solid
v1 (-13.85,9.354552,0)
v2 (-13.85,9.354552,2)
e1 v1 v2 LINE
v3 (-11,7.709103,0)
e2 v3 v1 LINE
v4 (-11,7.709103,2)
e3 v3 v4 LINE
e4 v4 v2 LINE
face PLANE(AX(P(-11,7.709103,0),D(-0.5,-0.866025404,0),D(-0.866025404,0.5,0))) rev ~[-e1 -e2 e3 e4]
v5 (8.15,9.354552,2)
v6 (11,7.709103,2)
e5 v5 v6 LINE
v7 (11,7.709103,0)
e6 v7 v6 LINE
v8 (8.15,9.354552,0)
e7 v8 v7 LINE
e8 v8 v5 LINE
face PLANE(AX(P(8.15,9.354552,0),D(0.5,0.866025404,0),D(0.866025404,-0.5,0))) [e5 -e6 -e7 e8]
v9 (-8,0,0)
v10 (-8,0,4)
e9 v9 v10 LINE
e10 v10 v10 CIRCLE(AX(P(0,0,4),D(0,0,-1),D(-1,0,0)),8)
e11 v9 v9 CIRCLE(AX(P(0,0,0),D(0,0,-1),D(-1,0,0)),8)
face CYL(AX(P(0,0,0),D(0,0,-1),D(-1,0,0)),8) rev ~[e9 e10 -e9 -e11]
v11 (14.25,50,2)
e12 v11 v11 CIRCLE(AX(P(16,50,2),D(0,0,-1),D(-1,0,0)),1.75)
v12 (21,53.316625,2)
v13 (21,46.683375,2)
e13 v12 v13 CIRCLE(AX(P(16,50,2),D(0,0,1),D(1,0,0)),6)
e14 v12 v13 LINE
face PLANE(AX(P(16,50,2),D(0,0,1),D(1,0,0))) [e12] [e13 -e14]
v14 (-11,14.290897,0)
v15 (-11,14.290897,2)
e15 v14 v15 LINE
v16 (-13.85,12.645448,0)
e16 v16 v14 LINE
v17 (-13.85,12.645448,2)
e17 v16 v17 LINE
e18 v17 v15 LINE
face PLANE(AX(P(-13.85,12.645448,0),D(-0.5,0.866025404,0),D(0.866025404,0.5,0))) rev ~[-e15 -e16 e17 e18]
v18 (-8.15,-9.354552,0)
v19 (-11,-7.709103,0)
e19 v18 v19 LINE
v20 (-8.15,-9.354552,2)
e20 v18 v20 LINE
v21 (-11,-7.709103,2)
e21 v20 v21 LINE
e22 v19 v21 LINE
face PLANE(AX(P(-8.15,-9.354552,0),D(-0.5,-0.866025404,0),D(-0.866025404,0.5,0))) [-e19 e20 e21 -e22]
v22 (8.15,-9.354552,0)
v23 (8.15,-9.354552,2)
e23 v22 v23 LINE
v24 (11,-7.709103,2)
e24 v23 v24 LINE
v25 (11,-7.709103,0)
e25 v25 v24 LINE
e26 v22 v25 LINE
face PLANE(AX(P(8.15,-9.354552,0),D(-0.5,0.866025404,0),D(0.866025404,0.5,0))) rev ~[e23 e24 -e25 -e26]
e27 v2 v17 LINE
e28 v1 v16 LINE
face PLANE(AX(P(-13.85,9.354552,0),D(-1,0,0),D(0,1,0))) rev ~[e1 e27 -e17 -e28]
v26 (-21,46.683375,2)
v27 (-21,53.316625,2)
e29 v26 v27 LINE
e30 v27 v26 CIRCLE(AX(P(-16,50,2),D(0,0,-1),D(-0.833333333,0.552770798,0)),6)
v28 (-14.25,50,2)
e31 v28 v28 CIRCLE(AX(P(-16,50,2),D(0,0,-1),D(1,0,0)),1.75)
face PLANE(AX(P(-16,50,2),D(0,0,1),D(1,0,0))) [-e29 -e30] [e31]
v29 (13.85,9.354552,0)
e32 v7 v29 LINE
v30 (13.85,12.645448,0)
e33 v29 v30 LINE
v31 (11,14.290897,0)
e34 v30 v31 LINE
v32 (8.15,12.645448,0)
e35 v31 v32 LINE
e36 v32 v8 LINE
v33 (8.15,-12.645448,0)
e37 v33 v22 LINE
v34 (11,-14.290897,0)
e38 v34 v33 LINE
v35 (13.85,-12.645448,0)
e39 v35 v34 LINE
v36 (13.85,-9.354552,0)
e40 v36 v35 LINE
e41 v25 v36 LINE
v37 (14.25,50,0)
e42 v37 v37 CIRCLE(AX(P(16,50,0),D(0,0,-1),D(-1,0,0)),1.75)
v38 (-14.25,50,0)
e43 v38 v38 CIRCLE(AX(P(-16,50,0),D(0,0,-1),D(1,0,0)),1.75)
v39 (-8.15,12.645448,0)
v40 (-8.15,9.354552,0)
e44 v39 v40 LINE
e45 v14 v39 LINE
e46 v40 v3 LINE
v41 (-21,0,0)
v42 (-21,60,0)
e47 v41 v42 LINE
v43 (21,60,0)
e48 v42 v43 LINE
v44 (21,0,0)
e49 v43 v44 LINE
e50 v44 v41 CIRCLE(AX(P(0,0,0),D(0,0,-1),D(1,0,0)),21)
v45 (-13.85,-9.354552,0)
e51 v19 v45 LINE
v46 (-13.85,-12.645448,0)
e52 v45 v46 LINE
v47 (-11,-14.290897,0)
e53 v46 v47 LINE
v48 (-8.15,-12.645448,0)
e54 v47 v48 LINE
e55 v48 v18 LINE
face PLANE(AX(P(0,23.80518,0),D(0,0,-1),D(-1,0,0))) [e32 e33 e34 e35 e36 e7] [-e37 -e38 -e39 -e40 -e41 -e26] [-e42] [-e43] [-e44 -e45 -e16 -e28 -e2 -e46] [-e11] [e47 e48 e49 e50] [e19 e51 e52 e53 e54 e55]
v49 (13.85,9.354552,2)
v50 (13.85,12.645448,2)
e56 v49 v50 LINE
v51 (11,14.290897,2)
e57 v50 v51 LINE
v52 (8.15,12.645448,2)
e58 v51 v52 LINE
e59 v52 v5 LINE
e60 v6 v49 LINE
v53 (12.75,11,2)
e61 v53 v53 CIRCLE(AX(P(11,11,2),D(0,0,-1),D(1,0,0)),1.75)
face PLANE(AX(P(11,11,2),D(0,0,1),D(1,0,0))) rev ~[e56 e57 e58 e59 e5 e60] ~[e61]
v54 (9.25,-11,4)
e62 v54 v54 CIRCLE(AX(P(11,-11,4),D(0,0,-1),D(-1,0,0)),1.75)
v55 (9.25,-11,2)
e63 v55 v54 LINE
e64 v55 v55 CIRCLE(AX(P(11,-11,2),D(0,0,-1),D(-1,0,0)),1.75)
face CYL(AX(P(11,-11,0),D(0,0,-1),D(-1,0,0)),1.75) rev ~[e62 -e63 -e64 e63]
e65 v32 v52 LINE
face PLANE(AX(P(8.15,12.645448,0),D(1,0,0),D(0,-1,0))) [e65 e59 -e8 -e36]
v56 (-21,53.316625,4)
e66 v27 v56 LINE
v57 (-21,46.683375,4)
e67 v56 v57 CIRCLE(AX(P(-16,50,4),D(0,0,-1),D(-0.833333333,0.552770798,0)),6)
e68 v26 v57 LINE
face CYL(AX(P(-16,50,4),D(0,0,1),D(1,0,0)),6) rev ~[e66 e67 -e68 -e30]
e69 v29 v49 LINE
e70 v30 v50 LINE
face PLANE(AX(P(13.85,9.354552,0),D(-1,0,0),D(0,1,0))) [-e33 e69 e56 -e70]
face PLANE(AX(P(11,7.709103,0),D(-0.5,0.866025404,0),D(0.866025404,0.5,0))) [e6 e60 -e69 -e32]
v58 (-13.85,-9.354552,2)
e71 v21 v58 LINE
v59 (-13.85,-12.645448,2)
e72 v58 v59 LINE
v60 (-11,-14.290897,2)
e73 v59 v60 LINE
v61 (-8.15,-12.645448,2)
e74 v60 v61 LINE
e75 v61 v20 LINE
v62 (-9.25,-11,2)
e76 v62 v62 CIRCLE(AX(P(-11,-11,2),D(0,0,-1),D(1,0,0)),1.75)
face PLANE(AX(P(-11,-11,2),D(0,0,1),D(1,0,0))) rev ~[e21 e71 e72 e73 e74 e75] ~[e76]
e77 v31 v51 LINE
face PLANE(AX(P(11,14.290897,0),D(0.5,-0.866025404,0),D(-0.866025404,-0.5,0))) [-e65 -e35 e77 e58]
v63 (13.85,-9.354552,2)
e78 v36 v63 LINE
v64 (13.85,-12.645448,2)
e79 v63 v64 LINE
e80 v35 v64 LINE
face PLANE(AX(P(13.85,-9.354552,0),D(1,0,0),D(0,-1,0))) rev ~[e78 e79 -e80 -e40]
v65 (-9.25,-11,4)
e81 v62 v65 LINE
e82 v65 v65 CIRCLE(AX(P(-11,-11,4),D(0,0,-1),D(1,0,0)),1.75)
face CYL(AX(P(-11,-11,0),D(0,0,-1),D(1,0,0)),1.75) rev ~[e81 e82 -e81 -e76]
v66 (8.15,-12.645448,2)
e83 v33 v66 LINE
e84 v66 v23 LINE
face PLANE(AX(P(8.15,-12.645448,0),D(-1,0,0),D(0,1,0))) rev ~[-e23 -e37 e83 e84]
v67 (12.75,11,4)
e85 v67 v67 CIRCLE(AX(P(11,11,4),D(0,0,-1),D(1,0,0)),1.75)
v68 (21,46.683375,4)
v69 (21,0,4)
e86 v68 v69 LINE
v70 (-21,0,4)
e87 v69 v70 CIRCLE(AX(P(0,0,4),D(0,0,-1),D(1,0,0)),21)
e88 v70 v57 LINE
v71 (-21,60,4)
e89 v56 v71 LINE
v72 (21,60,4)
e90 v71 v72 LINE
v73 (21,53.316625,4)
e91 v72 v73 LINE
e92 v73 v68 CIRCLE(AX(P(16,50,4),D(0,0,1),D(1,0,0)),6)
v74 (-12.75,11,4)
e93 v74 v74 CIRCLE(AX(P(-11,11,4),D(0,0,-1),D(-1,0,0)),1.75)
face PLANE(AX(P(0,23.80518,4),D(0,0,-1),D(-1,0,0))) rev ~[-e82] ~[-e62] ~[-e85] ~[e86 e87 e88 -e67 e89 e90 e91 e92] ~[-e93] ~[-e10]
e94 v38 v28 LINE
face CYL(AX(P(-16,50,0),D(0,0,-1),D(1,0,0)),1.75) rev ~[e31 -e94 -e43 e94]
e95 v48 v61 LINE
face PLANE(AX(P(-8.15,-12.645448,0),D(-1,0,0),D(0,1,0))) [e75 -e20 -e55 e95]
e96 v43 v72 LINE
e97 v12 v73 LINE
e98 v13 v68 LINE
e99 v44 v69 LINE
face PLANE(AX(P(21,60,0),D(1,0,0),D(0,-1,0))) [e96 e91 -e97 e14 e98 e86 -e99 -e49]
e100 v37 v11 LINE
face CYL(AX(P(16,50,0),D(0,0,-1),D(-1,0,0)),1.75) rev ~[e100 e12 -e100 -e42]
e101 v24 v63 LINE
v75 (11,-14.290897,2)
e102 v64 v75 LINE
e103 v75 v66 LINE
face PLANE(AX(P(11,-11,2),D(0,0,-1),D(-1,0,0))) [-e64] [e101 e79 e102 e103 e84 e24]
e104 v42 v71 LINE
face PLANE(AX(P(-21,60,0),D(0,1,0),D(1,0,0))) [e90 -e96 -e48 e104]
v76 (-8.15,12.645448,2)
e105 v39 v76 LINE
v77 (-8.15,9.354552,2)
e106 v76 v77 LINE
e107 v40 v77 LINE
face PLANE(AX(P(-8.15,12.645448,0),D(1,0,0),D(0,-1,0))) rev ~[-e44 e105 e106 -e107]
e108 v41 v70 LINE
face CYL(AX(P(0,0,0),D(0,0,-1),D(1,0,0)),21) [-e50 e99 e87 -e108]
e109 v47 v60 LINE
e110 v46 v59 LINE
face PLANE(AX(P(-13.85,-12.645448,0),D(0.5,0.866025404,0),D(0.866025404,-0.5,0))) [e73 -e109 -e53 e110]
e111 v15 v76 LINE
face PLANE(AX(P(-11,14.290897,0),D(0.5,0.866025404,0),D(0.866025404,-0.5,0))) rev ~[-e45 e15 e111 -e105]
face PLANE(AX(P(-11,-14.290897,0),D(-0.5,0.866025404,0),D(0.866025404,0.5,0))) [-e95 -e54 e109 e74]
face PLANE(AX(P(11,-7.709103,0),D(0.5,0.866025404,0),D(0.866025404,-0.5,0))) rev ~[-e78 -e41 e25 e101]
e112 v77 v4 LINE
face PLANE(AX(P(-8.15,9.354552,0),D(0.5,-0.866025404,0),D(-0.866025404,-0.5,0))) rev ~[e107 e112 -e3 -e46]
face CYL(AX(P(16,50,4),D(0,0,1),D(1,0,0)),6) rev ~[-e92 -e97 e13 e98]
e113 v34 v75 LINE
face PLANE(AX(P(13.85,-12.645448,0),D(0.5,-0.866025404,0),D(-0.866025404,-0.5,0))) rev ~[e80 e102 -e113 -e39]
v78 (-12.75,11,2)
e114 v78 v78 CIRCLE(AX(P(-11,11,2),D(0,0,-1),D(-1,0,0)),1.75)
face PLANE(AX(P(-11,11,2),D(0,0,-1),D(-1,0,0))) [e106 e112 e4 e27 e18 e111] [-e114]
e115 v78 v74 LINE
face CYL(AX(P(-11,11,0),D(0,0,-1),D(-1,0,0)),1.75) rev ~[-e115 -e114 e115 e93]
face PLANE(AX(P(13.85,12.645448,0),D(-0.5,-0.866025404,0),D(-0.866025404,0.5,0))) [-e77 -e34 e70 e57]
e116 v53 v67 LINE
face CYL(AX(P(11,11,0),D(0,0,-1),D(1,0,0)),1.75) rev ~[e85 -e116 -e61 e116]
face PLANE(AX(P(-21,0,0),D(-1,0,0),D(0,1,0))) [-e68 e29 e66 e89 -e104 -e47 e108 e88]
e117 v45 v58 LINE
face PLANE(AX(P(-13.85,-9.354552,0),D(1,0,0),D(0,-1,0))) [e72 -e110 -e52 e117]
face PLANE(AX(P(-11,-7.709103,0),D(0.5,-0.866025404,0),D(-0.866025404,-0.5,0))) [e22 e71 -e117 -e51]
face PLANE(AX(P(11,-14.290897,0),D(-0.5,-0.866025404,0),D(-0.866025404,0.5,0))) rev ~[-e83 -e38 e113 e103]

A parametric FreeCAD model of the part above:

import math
import FreeCAD as App
import Part
import Sketcher
from FreeCAD import Vector
Q = App.Units.Quantity

doc = App.newDocument("Part")
params = doc.addObject("Spreadsheet::Sheet", "Params")
for row, (alias, value) in enumerate([
    ("sketch1_radius", "21 mm"),
    ("sketch1_height", "60 mm"),
    ("pad1_length", "4 mm"),
    ("sketch2_diameter", "12 mm"),
    ("sketch3_diameter", "16 mm"),
    ("pocket2_length", "4 mm"),
    ("sketch4_diameter", "3.5 mm"),
    ("pocket4_length", "2 mm"),
    ("sketch6_diameter", "3.5 mm"),
    ("sketch7_diameter", "12 mm"),
    ("pocket6_length", "2 mm"),
], start=1):
    params.set(f"A{row}", alias)
    params.set(f"B{row}", "=" + value)
    params.setAlias(f"B{row}", alias)

body = doc.addObject("PartDesign::Body", "Body")

sketch1 = body.newObject("Sketcher::SketchObject", "Sketch")
sketch1.AttachmentSupport = (doc.getObject("XY_Plane"), [""])
sketch1.MapMode = "FlatFace"
sketch1.addGeometry(Part.LineSegment(Vector(-21, 60, 0), Vector(-21, 0, 0)), False)
sketch1.addGeometry(Part.ArcOfCircle(Part.Circle(Vector(0, 0, 0), Vector(0, 0, 1), 21), math.radians(180), math.radians(360)), False)
sketch1.addGeometry(Part.LineSegment(Vector(21, 0, 0), Vector(21, 60, 0)), False)
sketch1.addGeometry(Part.LineSegment(Vector(21, 60, 0), Vector(-21, 60, 0)), False)
sketch1.addConstraint(Sketcher.Constraint("Tangent", 0, 2, 1, 1))
sketch1.addConstraint(Sketcher.Constraint("Tangent", 1, 2, 2, 1))
sketch1.addConstraint(Sketcher.Constraint("Coincident", 2, 2, 3, 1))
sketch1.addConstraint(Sketcher.Constraint("Coincident", 3, 2, 0, 1))
sketch1.addConstraint(Sketcher.Constraint("Vertical", 0))
sketch1.addConstraint(Sketcher.Constraint("Vertical", 2))
sketch1.addConstraint(Sketcher.Constraint("Horizontal", 3))
sketch1.addConstraint(Sketcher.Constraint("Coincident", 1, 3, -1, 1))
sketch1.addConstraint(Sketcher.Constraint("Radius", 1, 21.0))
sketch1.addConstraint(Sketcher.Constraint("DistanceY", 0, 2, 0, 1, 60.0))
sketch1.setExpression("Constraints[8]", "Params.sketch1_radius")
sketch1.setExpression("Constraints[9]", "Params.sketch1_height")
pad1 = body.newObject("PartDesign::Pad", "Pad")
pad1.Profile = sketch1
pad1.setExpression("Length", "Params.pad1_length")

sketch2 = body.newObject("Sketcher::SketchObject", "Sketch001")
sketch2.AttachmentSupport = (doc.getObject("XY_Plane"), [""])
sketch2.MapMode = "FlatFace"
sketch2.addGeometry(Part.Circle(Vector(0, 0, 0), Vector(0, 0, 1), 6), False)
sketch2.addConstraint(Sketcher.Constraint("Coincident", 0, 3, -1, 1))
sketch2.addConstraint(Sketcher.Constraint("Diameter", 0, 12.0))
sketch2.setExpression("Constraints[1]", "Params.sketch2_diameter")
pocket1 = body.newObject("PartDesign::Pocket", "Pocket")
pocket1.Profile = sketch2
pocket1.Type = "ThroughAll"
pocket1.Reversed = True

sketch3 = body.newObject("Sketcher::SketchObject", "Sketch002")
sketch3.AttachmentSupport = (doc.getObject("XY_Plane"), [""])
sketch3.MapMode = "FlatFace"
sketch3.addGeometry(Part.Circle(Vector(0, 0, 0), Vector(0, 0, 1), 8), False)
sketch3.addConstraint(Sketcher.Constraint("Coincident", 0, 3, -1, 1))
sketch3.addConstraint(Sketcher.Constraint("Diameter", 0, 16.0))
sketch3.setExpression("Constraints[1]", "Params.sketch3_diameter")
pocket2 = body.newObject("PartDesign::Pocket", "Pocket001")
pocket2.Profile = sketch3
pocket2.setExpression("Length", "Params.pocket2_length")
pocket2.Reversed = True

sketch4 = body.newObject("Sketcher::SketchObject", "Sketch003")
sketch4.AttachmentSupport = (doc.getObject("XY_Plane"), [""])
sketch4.MapMode = "FlatFace"
sketch4.addGeometry(Part.Circle(Vector(11, -11, 0), Vector(0, 0, 1), 1.75), False)
sketch4.addGeometry(Part.Circle(Vector(11, 11, 0), Vector(0, 0, 1), 1.75), False)
sketch4.addGeometry(Part.Circle(Vector(-11, 11, 0), Vector(0, 0, 1), 1.75), False)
sketch4.addGeometry(Part.Circle(Vector(-11, -11, 0), Vector(0, 0, 1), 1.75), False)
sketch4.addConstraint(Sketcher.Constraint("Equal", 0, 1))
sketch4.addConstraint(Sketcher.Constraint("Equal", 1, 2))
sketch4.addConstraint(Sketcher.Constraint("Equal", 2, 3))
sketch4.addConstraint(Sketcher.Constraint("Symmetric", 0, 3, 2, 3, -1, 1))
sketch4.addConstraint(Sketcher.Constraint("Symmetric", 1, 3, 3, 3, -1, 1))
sketch4.addConstraint(Sketcher.Constraint("Symmetric", 1, 3, 2, 3, -2))
sketch4.addConstraint(Sketcher.Constraint("Diameter", 0, 3.5))
sketch4.addConstraint(Sketcher.Constraint("DistanceX", -1, 1, 0, 3, 11.0))
sketch4.addConstraint(Sketcher.Constraint("DistanceY", 0, 3, -1, 1, 11.0))
sketch4.setExpression("Constraints[6]", "Params.sketch4_diameter")
pocket3 = body.newObject("PartDesign::Pocket", "Pocket002")
pocket3.Profile = sketch4
pocket3.Type = "ThroughAll"
pocket3.Reversed = True

sketch5 = body.newObject("Sketcher::SketchObject", "Sketch004")
sketch5.AttachmentSupport = (doc.getObject("XY_Plane"), [""])
sketch5.MapMode = "FlatFace"
sketch5.addGeometry(Part.LineSegment(Vector(11, -7.709103, 0), Vector(13.85, -9.354552, 0)), False)
sketch5.addGeometry(Part.LineSegment(Vector(13.85, -9.354552, 0), Vector(13.85, -12.645448, 0)), False)
sketch5.addGeometry(Part.LineSegment(Vector(13.85, -12.645448, 0), Vector(11, -14.290897, 0)), False)
sketch5.addGeometry(Part.LineSegment(Vector(11, -14.290897, 0), Vector(8.15, -12.645448, 0)), False)
sketch5.addGeometry(Part.LineSegment(Vector(8.15, -12.645448, 0), Vector(8.15, -9.354552, 0)), False)
sketch5.addGeometry(Part.LineSegment(Vector(8.15, -9.354552, 0), Vector(11, -7.709103, 0)), False)
sketch5.addGeometry(Part.LineSegment(Vector(11, 7.709103, 0), Vector(8.15, 9.354552, 0)), False)
sketch5.addGeometry(Part.LineSegment(Vector(8.15, 9.354552, 0), Vector(8.15, 12.645448, 0)), False)
sketch5.addGeometry(Part.LineSegment(Vector(8.15, 12.645448, 0), Vector(11, 14.290897, 0)), False)
sketch5.addGeometry(Part.LineSegment(Vector(11, 14.290897, 0), Vector(13.85, 12.645448, 0)), False)
sketch5.addGeometry(Part.LineSegment(Vector(13.85, 12.645448, 0), Vector(13.85, 9.354552, 0)), False)
sketch5.addGeometry(Part.LineSegment(Vector(13.85, 9.354552, 0), Vector(11, 7.709103, 0)), False)
sketch5.addGeometry(Part.LineSegment(Vector(-11, 7.709103, 0), Vector(-13.85, 9.354552, 0)), False)
sketch5.addGeometry(Part.LineSegment(Vector(-13.85, 9.354552, 0), Vector(-13.85, 12.645448, 0)), False)
sketch5.addGeometry(Part.LineSegment(Vector(-13.85, 12.645448, 0), Vector(-11, 14.290897, 0)), False)
sketch5.addGeometry(Part.LineSegment(Vector(-11, 14.290897, 0), Vector(-8.15, 12.645448, 0)), False)
sketch5.addGeometry(Part.LineSegment(Vector(-8.15, 12.645448, 0), Vector(-8.15, 9.354552, 0)), False)
sketch5.addGeometry(Part.LineSegment(Vector(-8.15, 9.354552, 0), Vector(-11, 7.709103, 0)), False)
sketch5.addGeometry(Part.LineSegment(Vector(-11, -7.709103, 0), Vector(-8.15, -9.354552, 0)), False)
sketch5.addGeometry(Part.LineSegment(Vector(-8.15, -9.354552, 0), Vector(-8.15, -12.645448, 0)), False)
sketch5.addGeometry(Part.LineSegment(Vector(-8.15, -12.645448, 0), Vector(-11, -14.290897, 0)), False)
sketch5.addGeometry(Part.LineSegment(Vector(-11, -14.290897, 0), Vector(-13.85, -12.645448, 0)), False)
sketch5.addGeometry(Part.LineSegment(Vector(-13.85, -12.645448, 0), Vector(-13.85, -9.354552, 0)), False)
sketch5.addGeometry(Part.LineSegment(Vector(-13.85, -9.354552, 0), Vector(-11, -7.709103, 0)), False)
sketch5.addConstraint(Sketcher.Constraint("Coincident", 0, 2, 1, 1))
sketch5.addConstraint(Sketcher.Constraint("Coincident", 1, 2, 2, 1))
sketch5.addConstraint(Sketcher.Constraint("Coincident", 2, 2, 3, 1))
sketch5.addConstraint(Sketcher.Constraint("Coincident", 3, 2, 4, 1))
sketch5.addConstraint(Sketcher.Constraint("Coincident", 4, 2, 5, 1))
sketch5.addConstraint(Sketcher.Constraint("Coincident", 5, 2, 0, 1))
sketch5.addConstraint(Sketcher.Constraint("Coincident", 6, 2, 7, 1))
sketch5.addConstraint(Sketcher.Constraint("Coincident", 7, 2, 8, 1))
sketch5.addConstraint(Sketcher.Constraint("Coincident", 8, 2, 9, 1))
sketch5.addConstraint(Sketcher.Constraint("Coincident", 9, 2, 10, 1))
sketch5.addConstraint(Sketcher.Constraint("Coincident", 10, 2, 11, 1))
sketch5.addConstraint(Sketcher.Constraint("Coincident", 11, 2, 6, 1))
sketch5.addConstraint(Sketcher.Constraint("Coincident", 12, 2, 13, 1))
sketch5.addConstraint(Sketcher.Constraint("Coincident", 13, 2, 14, 1))
sketch5.addConstraint(Sketcher.Constraint("Coincident", 14, 2, 15, 1))
sketch5.addConstraint(Sketcher.Constraint("Coincident", 15, 2, 16, 1))
sketch5.addConstraint(Sketcher.Constraint("Coincident", 16, 2, 17, 1))
sketch5.addConstraint(Sketcher.Constraint("Coincident", 17, 2, 12, 1))
sketch5.addConstraint(Sketcher.Constraint("Coincident", 18, 2, 19, 1))
sketch5.addConstraint(Sketcher.Constraint("Coincident", 19, 2, 20, 1))
sketch5.addConstraint(Sketcher.Constraint("Coincident", 20, 2, 21, 1))
sketch5.addConstraint(Sketcher.Constraint("Coincident", 21, 2, 22, 1))
sketch5.addConstraint(Sketcher.Constraint("Coincident", 22, 2, 23, 1))
sketch5.addConstraint(Sketcher.Constraint("Coincident", 23, 2, 18, 1))
sketch5.addConstraint(Sketcher.Constraint("Vertical", 1))
sketch5.addConstraint(Sketcher.Constraint("Vertical", 4))
sketch5.addConstraint(Sketcher.Constraint("Vertical", 7))
sketch5.addConstraint(Sketcher.Constraint("Vertical", 10))
sketch5.addConstraint(Sketcher.Constraint("Vertical", 13))
sketch5.addConstraint(Sketcher.Constraint("Vertical", 16))
sketch5.addConstraint(Sketcher.Constraint("Vertical", 19))
sketch5.addConstraint(Sketcher.Constraint("Vertical", 22))
sketch5.addConstraint(Sketcher.Constraint("Symmetric", 0, 2, 12, 2, -1, 1))
sketch5.addConstraint(Sketcher.Constraint("Symmetric", 2, 2, 14, 2, -1, 1))
sketch5.addConstraint(Sketcher.Constraint("Symmetric", 3, 2, 15, 2, -1, 1))
sketch5.addConstraint(Sketcher.Constraint("Symmetric", 5, 2, 17, 2, -1, 1))
sketch5.addConstraint(Sketcher.Constraint("Symmetric", 6, 2, 18, 2, -1, 1))
sketch5.addConstraint(Sketcher.Constraint("Symmetric", 8, 2, 20, 2, -1, 1))
sketch5.addConstraint(Sketcher.Constraint("Symmetric", 9, 2, 21, 2, -1, 1))
sketch5.addConstraint(Sketcher.Constraint("Symmetric", 11, 2, 23, 2, -1, 1))
sketch5.addConstraint(Sketcher.Constraint("Symmetric", 10, 2, 12, 2, -2))
sketch5.addConstraint(Sketcher.Constraint("Symmetric", 8, 2, 14, 2, -2))
sketch5.addConstraint(Sketcher.Constraint("Symmetric", 7, 2, 15, 2, -2))
sketch5.addConstraint(Sketcher.Constraint("Symmetric", 11, 2, 17, 2, -2))
sketch5.addConstraint(Sketcher.Constraint("Parallel", 0, 3))
sketch5.addConstraint(Sketcher.Constraint("Parallel", 2, 5))
sketch5.addConstraint(Sketcher.Constraint("Parallel", 3, 6))
sketch5.addConstraint(Sketcher.Constraint("Parallel", 5, 8))
sketch5.addConstraint(Sketcher.Constraint("Parallel", 6, 9))
sketch5.addConstraint(Sketcher.Constraint("Parallel", 11, 14))
sketch5.addConstraint(Sketcher.Constraint("Parallel", 14, 17))
sketch5.addConstraint(Sketcher.Constraint("Parallel", 17, 20))
sketch5.addConstraint(Sketcher.Constraint("Parallel", 20, 23))
sketch5.addConstraint(Sketcher.Constraint("Horizontal", 1, 2, 3, 2))
sketch5.addConstraint(Sketcher.Constraint("Horizontal", 0, 2, 4, 2))
sketch5.addConstraint(Sketcher.Constraint("Angle", 0, Q("-30 deg")))
sketch5.addConstraint(Sketcher.Constraint("DistanceX", -1, 1, 2, 2, 11.0))
sketch5.addConstraint(Sketcher.Constraint("DistanceY", 3, 2, 6, 2, 22.0))
sketch5.addConstraint(Sketcher.Constraint("DistanceX", 3, 2, 1, 2, 5.7))
sketch5.addConstraint(Sketcher.Constraint("DistanceY", 1, 2, 1, 1, 3.290897))
pocket4 = body.newObject("PartDesign::Pocket", "Pocket003")
pocket4.Profile = sketch5
pocket4.setExpression("Length", "Params.pocket4_length")
pocket4.Reversed = True

sketch6 = body.newObject("Sketcher::SketchObject", "Sketch005")
sketch6.AttachmentSupport = (doc.getObject("XY_Plane"), [""])
sketch6.MapMode = "FlatFace"
sketch6.addGeometry(Part.Circle(Vector(16, 50, 0), Vector(0, 0, 1), 1.75), False)
sketch6.addGeometry(Part.Circle(Vector(-16, 50, 0), Vector(0, 0, 1), 1.75), False)
sketch6.addConstraint(Sketcher.Constraint("Equal", 0, 1))
sketch6.addConstraint(Sketcher.Constraint("Symmetric", 0, 3, 1, 3, -2))
sketch6.addConstraint(Sketcher.Constraint("Diameter", 0, 3.5))
sketch6.addConstraint(Sketcher.Constraint("DistanceX", -1, 1, 0, 3, 16.0))
sketch6.addConstraint(Sketcher.Constraint("DistanceY", -1, 1, 0, 3, 50.0))
sketch6.setExpression("Constraints[2]", "Params.sketch6_diameter")
pocket5 = body.newObject("PartDesign::Pocket", "Pocket004")
pocket5.Profile = sketch6
pocket5.Type = "ThroughAll"
pocket5.Reversed = True

sketch7 = body.newObject("Sketcher::SketchObject", "Sketch006")
sketch7.AttachmentSupport = (doc.getObject("XY_Plane"), [""])
sketch7.MapMode = "FlatFace"
sketch7.AttachmentOffset = App.Placement(Vector(0, 0, 4), App.Rotation())
sketch7.addGeometry(Part.Circle(Vector(-16, 50, 0), Vector(0, 0, 1), 6), False)
sketch7.addGeometry(Part.Circle(Vector(16, 50, 0), Vector(0, 0, 1), 6), False)
sketch7.addConstraint(Sketcher.Constraint("Equal", 0, 1))
sketch7.addConstraint(Sketcher.Constraint("Symmetric", 0, 3, 1, 3, -2))
sketch7.addConstraint(Sketcher.Constraint("Diameter", 0, 12.0))
sketch7.addConstraint(Sketcher.Constraint("DistanceX", 0, 3, -1, 1, 16.0))
sketch7.addConstraint(Sketcher.Constraint("DistanceY", -1, 1, 0, 3, 50.0))
sketch7.setExpression("Constraints[2]", "Params.sketch7_diameter")
pocket6 = body.newObject("PartDesign::Pocket", "Pocket005")
pocket6.Profile = sketch7
pocket6.setExpression("Length", "Params.pocket6_length")

doc.recompute()
